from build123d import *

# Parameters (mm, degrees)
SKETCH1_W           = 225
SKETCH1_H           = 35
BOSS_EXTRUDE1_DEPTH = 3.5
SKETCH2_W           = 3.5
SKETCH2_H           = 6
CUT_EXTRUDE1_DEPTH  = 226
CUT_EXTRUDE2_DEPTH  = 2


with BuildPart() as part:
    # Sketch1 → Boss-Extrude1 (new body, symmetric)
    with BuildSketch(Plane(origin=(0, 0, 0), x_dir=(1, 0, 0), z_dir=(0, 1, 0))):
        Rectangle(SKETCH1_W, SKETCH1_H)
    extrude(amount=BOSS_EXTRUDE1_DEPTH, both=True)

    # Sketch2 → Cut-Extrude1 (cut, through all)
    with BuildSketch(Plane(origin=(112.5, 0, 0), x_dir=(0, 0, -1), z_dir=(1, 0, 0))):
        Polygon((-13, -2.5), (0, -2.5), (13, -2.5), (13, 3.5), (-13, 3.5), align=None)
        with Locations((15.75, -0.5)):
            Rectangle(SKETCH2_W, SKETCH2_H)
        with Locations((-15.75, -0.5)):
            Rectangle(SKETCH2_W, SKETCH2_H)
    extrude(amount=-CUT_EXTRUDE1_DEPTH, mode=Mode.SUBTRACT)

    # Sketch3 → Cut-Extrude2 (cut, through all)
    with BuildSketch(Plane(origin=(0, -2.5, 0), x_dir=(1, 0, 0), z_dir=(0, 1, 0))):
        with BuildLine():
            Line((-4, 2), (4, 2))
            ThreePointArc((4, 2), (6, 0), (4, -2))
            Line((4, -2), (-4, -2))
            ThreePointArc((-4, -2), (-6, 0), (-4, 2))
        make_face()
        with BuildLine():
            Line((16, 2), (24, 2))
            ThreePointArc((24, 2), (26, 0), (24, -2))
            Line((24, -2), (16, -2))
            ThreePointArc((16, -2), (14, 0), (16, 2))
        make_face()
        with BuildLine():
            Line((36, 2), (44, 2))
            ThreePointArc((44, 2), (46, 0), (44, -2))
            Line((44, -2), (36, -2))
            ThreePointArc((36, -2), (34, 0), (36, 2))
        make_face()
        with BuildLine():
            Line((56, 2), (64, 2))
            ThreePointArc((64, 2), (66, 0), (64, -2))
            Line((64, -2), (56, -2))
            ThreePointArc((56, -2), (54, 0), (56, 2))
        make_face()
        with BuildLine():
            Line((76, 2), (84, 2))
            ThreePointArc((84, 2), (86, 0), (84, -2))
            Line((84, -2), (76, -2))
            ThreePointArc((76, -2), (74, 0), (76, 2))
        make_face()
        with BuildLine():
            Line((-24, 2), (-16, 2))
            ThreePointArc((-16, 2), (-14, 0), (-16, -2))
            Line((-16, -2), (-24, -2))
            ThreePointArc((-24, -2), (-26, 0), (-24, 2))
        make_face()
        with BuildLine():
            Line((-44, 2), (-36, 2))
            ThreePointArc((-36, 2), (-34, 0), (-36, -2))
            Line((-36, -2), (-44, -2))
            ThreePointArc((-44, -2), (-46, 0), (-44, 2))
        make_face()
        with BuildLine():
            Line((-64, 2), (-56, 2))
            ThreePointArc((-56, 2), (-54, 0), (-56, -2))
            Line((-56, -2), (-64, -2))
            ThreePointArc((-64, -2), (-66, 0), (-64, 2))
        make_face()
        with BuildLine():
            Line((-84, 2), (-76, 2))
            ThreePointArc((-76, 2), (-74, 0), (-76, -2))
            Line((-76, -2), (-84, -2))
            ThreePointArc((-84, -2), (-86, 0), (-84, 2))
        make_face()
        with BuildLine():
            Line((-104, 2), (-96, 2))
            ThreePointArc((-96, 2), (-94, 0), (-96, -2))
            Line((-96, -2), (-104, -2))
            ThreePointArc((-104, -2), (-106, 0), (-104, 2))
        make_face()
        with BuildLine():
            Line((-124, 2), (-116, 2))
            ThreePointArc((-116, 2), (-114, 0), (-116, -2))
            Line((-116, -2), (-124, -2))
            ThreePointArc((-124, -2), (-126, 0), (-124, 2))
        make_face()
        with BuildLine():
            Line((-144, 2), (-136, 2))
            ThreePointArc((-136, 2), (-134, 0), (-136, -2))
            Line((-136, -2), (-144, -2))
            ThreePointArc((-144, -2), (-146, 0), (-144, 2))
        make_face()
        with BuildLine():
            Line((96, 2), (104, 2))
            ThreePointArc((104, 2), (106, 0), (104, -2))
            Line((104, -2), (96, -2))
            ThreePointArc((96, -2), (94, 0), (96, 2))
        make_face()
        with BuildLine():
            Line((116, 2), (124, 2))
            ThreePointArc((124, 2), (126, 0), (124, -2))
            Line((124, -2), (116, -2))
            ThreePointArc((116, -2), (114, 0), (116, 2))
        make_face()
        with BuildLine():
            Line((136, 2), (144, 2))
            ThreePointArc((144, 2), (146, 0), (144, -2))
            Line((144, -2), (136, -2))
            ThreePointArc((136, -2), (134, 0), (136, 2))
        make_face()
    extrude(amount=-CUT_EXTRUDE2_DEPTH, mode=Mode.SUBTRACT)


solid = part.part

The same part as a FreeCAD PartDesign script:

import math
import FreeCAD as App
import Part
import Sketcher

V = App.Vector
Q = App.Units.Quantity

doc = App.newDocument("Part")
body = doc.addObject("PartDesign::Body", "Body")

sketch1 = body.newObject("Sketcher::SketchObject", "Sketch")
sketch1.AttachmentSupport = (doc.getObject("XZ_Plane"), [""])
sketch1.MapMode = "FlatFace"
sketch1.addGeometry([
    Part.LineSegment(V(-112, -18, 0), V(-112, 18, 0)),
    Part.LineSegment(V(-112, 18, 0), V(112, 18, 0)),
    Part.LineSegment(V(112, 18, 0), V(112, -18, 0)),
    Part.LineSegment(V(112, -18, 0), V(-112, -18, 0)),
], False)
sketch1.addConstraint([
    Sketcher.Constraint("Coincident", 0, 2, 1, 1),
    Sketcher.Constraint("Coincident", 1, 2, 2, 1),
    Sketcher.Constraint("Coincident", 2, 2, 3, 1),
    Sketcher.Constraint("Coincident", 3, 2, 0, 1),
    Sketcher.Constraint("Vertical", 0),
    Sketcher.Constraint("Horizontal", 1),
    Sketcher.Constraint("Vertical", 2),
    Sketcher.Constraint("Horizontal", 3),
    Sketcher.Constraint("Symmetric", 0, 2, 2, 2, -1, 1),
    Sketcher.Constraint("DistanceX", 1, 1, 1, 2, Q("225 mm")),
    Sketcher.Constraint("DistanceY", 0, 1, 0, 2, Q("35 mm")),
])
pad1 = body.newObject("PartDesign::Pad", "Pad")
pad1.Profile = sketch1
pad1.Length = 7
pad1.Midplane = True

sketch2 = body.newObject("Sketcher::SketchObject", "Sketch001")
sketch2.AttachmentSupport = (doc.getObject("YZ_Plane"), [""])
sketch2.MapMode = "FlatFace"
sketch2.AttachmentOffset = App.Placement(V(0, 0, 112.5), App.Rotation())
sketch2.addGeometry([
    Part.LineSegment(V(-2.5, 13, 0), V(-2.5, -13, 0)),
    Part.LineSegment(V(-2.5, -13, 0), V(3.5, -13, 0)),
    Part.LineSegment(V(3.5, -13, 0), V(3.5, 13, 0)),
    Part.LineSegment(V(3.5, 13, 0), V(-2.5, 13, 0)),
    Part.LineSegment(V(2.5, -14, 0), V(-3.5, -14, 0)),
    Part.LineSegment(V(-3.5, -14, 0), V(-3.5, -17.5, 0)),
    Part.LineSegment(V(-3.5, -17.5, 0), V(2.5, -17.5, 0)),
    Part.LineSegment(V(2.5, -17.5, 0), V(2.5, -14, 0)),
    Part.LineSegment(V(2.5, 17.5, 0), V(-3.5, 17.5, 0)),
    Part.LineSegment(V(-3.5, 17.5, 0), V(-3.5, 14, 0)),
    Part.LineSegment(V(-3.5, 14, 0), V(2.5, 14, 0)),
    Part.LineSegment(V(2.5, 14, 0), V(2.5, 17.5, 0)),
], False)
sketch2.addConstraint([
    Sketcher.Constraint("Coincident", 0, 2, 1, 1),
    Sketcher.Constraint("Coincident", 1, 2, 2, 1),
    Sketcher.Constraint("Coincident", 2, 2, 3, 1),
    Sketcher.Constraint("Coincident", 3, 2, 0, 1),
    Sketcher.Constraint("Coincident", 4, 2, 5, 1),
    Sketcher.Constraint("Coincident", 5, 2, 6, 1),
    Sketcher.Constraint("Coincident", 6, 2, 7, 1),
    Sketcher.Constraint("Coincident", 7, 2, 4, 1),
    Sketcher.Constraint("Coincident", 8, 2, 9, 1),
    Sketcher.Constraint("Coincident", 9, 2, 10, 1),
    Sketcher.Constraint("Coincident", 10, 2, 11, 1),
    Sketcher.Constraint("Coincident", 11, 2, 8, 1),
    Sketcher.Constraint("Vertical", 0),
    Sketcher.Constraint("Horizontal", 1),
    Sketcher.Constraint("Vertical", 2),
    Sketcher.Constraint("Horizontal", 3),
    Sketcher.Constraint("Horizontal", 4),
    Sketcher.Constraint("Vertical", 5),
    Sketcher.Constraint("Horizontal", 6),
    Sketcher.Constraint("Vertical", 7),
    Sketcher.Constraint("Horizontal", 8),
    Sketcher.Constraint("Vertical", 9),
    Sketcher.Constraint("Horizontal", 10),
    Sketcher.Constraint("Vertical", 11),
    Sketcher.Constraint("Symmetric", 5, 2, 8, 2, -1),
    Sketcher.Constraint("Symmetric", 7, 2, 10, 2, -1),
    Sketcher.Constraint("Equal", 3, 4),
    Sketcher.Constraint("DistanceX", 1, 1, 1, 2, Q("6 mm")),
    Sketcher.Constraint("DistanceY", 0, 2, 0, 1, Q("26 mm")),
    Sketcher.Constraint("DistanceY", 5, 2, 5, 1, Q("3.5 mm")),
    Sketcher.Constraint("DistanceY", 0, 2, -1, 1, Q("13 mm")),
    Sketcher.Constraint("DistanceY", 4, 2, -1, 1, Q("14 mm")),
    Sketcher.Constraint("DistanceX", 4, 2, 0, 2, Q("1 mm")),
    Sketcher.Constraint("DistanceX", 0, 2, -1, 1, Q("2.5 mm")),
])
pocket1 = body.newObject("PartDesign::Pocket", "Pocket")
pocket1.Profile = sketch2
pocket1.Type = "ThroughAll"

sketch3 = body.newObject("Sketcher::SketchObject", "Sketch002")
sketch3.AttachmentSupport = (doc.getObject("XZ_Plane"), [""])
sketch3.MapMode = "FlatFace"
sketch3.AttachmentOffset = App.Placement(V(0, 0, 2.5), App.Rotation())
sketch3.addGeometry([
    Part.LineSegment(V(4, -2, 0), V(-4, -2, 0)),
    Part.ArcOfCircle(Part.Circle(V(-4, 0, 0), V(0, 0, 1), 2), math.radians(90), math.radians(270)),
    Part.LineSegment(V(-4, 2, 0), V(4, 2, 0)),
    Part.ArcOfCircle(Part.Circle(V(4, 0, 0), V(0, 0, 1), 2), math.radians(-90), math.radians(90)),
    Part.LineSegment(V(24, -2, 0), V(16, -2, 0)),
    Part.ArcOfCircle(Part.Circle(V(16, 0, 0), V(0, 0, 1), 2), math.radians(90), math.radians(270)),
    Part.LineSegment(V(16, 2, 0), V(24, 2, 0)),
    Part.ArcOfCircle(Part.Circle(V(24, 0, 0), V(0, 0, 1), 2), math.radians(-90), math.radians(90)),
    Part.LineSegment(V(44, -2, 0), V(36, -2, 0)),
    Part.ArcOfCircle(Part.Circle(V(36, 0, 0), V(0, 0, 1), 2), math.radians(90), math.radians(270)),
    Part.LineSegment(V(36, 2, 0), V(44, 2, 0)),
    Part.ArcOfCircle(Part.Circle(V(44, 0, 0), V(0, 0, 1), 2), math.radians(-90), math.radians(90)),
    Part.LineSegment(V(64, -2, 0), V(56, -2, 0)),
    Part.ArcOfCircle(Part.Circle(V(56, 0, 0), V(0, 0, 1), 2), math.radians(90), math.radians(270)),
    Part.LineSegment(V(56, 2, 0), V(64, 2, 0)),
    Part.ArcOfCircle(Part.Circle(V(64, 0, 0), V(0, 0, 1), 2), math.radians(-90), math.radians(90)),
    Part.LineSegment(V(84, -2, 0), V(76, -2, 0)),
    Part.ArcOfCircle(Part.Circle(V(76, 0, 0), V(0, 0, 1), 2), math.radians(90), math.radians(270)),
    Part.LineSegment(V(76, 2, 0), V(84, 2, 0)),
    Part.ArcOfCircle(Part.Circle(V(84, 0, 0), V(0, 0, 1), 2), math.radians(-90), math.radians(90)),
    Part.LineSegment(V(-16, -2, 0), V(-24, -2, 0)),
    Part.ArcOfCircle(Part.Circle(V(-24, 0, 0), V(0, 0, 1), 2), math.radians(90), math.radians(270)),
    Part.LineSegment(V(-24, 2, 0), V(-16, 2, 0)),
    Part.ArcOfCircle(Part.Circle(V(-16, 0, 0), V(0, 0, 1), 2), math.radians(-90), math.radians(90)),
    Part.LineSegment(V(-36, -2, 0), V(-44, -2, 0)),
    Part.ArcOfCircle(Part.Circle(V(-44, 0, 0), V(0, 0, 1), 2), math.radians(90), math.radians(270)),
    Part.LineSegment(V(-44, 2, 0), V(-36, 2, 0)),
    Part.ArcOfCircle(Part.Circle(V(-36, 0, 0), V(0, 0, 1), 2), math.radians(-90), math.radians(90)),
    Part.LineSegment(V(-56, -2, 0), V(-64, -2, 0)),
    Part.ArcOfCircle(Part.Circle(V(-64, 0, 0), V(0, 0, 1), 2), math.radians(90), math.radians(270)),
    Part.LineSegment(V(-64, 2, 0), V(-56, 2, 0)),
    Part.ArcOfCircle(Part.Circle(V(-56, 0, 0), V(0, 0, 1), 2), math.radians(-90), math.radians(90)),
    Part.LineSegment(V(-76, -2, 0), V(-84, -2, 0)),
    Part.ArcOfCircle(Part.Circle(V(-84, 0, 0), V(0, 0, 1), 2), math.radians(90), math.radians(270)),
    Part.LineSegment(V(-84, 2, 0), V(-76, 2, 0)),
    Part.ArcOfCircle(Part.Circle(V(-76, 0, 0), V(0, 0, 1), 2), math.radians(-90), math.radians(90)),
    Part.LineSegment(V(-96, -2, 0), V(-104, -2, 0)),
    Part.ArcOfCircle(Part.Circle(V(-104, 0, 0), V(0, 0, 1), 2), math.radians(90), math.radians(270)),
    Part.LineSegment(V(-104, 2, 0), V(-96, 2, 0)),
    Part.ArcOfCircle(Part.Circle(V(-96, 0, 0), V(0, 0, 1), 2), math.radians(-90), math.radians(90)),
    Part.LineSegment(V(-116, -2, 0), V(-124, -2, 0)),
    Part.ArcOfCircle(Part.Circle(V(-124, 0, 0), V(0, 0, 1), 2), math.radians(90), math.radians(270)),
    Part.LineSegment(V(-124, 2, 0), V(-116, 2, 0)),
    Part.ArcOfCircle(Part.Circle(V(-116, 0, 0), V(0, 0, 1), 2), math.radians(-90), math.radians(90)),
    Part.LineSegment(V(-136, -2, 0), V(-144, -2, 0)),
    Part.ArcOfCircle(Part.Circle(V(-144, 0, 0), V(0, 0, 1), 2), math.radians(90), math.radians(270)),
    Part.LineSegment(V(-144, 2, 0), V(-136, 2, 0)),
    Part.ArcOfCircle(Part.Circle(V(-136, 0, 0), V(0, 0, 1), 2), math.radians(-90), math.radians(90)),
    Part.LineSegment(V(104, -2, 0), V(96, -2, 0)),
    Part.ArcOfCircle(Part.Circle(V(96, 0, 0), V(0, 0, 1), 2), math.radians(90), math.radians(270)),
    Part.LineSegment(V(96, 2, 0), V(104, 2, 0)),
    Part.ArcOfCircle(Part.Circle(V(104, 0, 0), V(0, 0, 1), 2), math.radians(-90), math.radians(90)),
    Part.LineSegment(V(124, -2, 0), V(116, -2, 0)),
    Part.ArcOfCircle(Part.Circle(V(116, 0, 0), V(0, 0, 1), 2), math.radians(90), math.radians(270)),
    Part.LineSegment(V(116, 2, 0), V(124, 2, 0)),
    Part.ArcOfCircle(Part.Circle(V(124, 0, 0), V(0, 0, 1), 2), math.radians(-90), math.radians(90)),
    Part.LineSegment(V(144, -2, 0), V(136, -2, 0)),
    Part.ArcOfCircle(Part.Circle(V(136, 0, 0), V(0, 0, 1), 2), math.radians(90), math.radians(270)),
    Part.LineSegment(V(136, 2, 0), V(144, 2, 0)),
    Part.ArcOfCircle(Part.Circle(V(144, 0, 0), V(0, 0, 1), 2), math.radians(-90), math.radians(90)),
], False)
sketch3.addConstraint([
    Sketcher.Constraint("Tangent", 0, 2, 1, 2),
    Sketcher.Constraint("Tangent", 1, 1, 2, 1),
    Sketcher.Constraint("Tangent", 2, 2, 3, 2),
    Sketcher.Constraint("Tangent", 3, 1, 0, 1),
    Sketcher.Constraint("Tangent", 4, 2, 5, 2),
    Sketcher.Constraint("Tangent", 5, 1, 6, 1),
    Sketcher.Constraint("Tangent", 6, 2, 7, 2),
    Sketcher.Constraint("Tangent", 7, 1, 4, 1),
    Sketcher.Constraint("Tangent", 8, 2, 9, 2),
    Sketcher.Constraint("Tangent", 9, 1, 10, 1),
    Sketcher.Constraint("Tangent", 10, 2, 11, 2),
    Sketcher.Constraint("Tangent", 11, 1, 8, 1),
    Sketcher.Constraint("Tangent", 12, 2, 13, 2),
    Sketcher.Constraint("Tangent", 13, 1, 14, 1),
    Sketcher.Constraint("Tangent", 14, 2, 15, 2),
    Sketcher.Constraint("Tangent", 15, 1, 12, 1),
    Sketcher.Constraint("Tangent", 16, 2, 17, 2),
    Sketcher.Constraint("Tangent", 17, 1, 18, 1),
    Sketcher.Constraint("Tangent", 18, 2, 19, 2),
    Sketcher.Constraint("Tangent", 19, 1, 16, 1),
    Sketcher.Constraint("Tangent", 20, 2, 21, 2),
    Sketcher.Constraint("Tangent", 21, 1, 22, 1),
    Sketcher.Constraint("Tangent", 22, 2, 23, 2),
    Sketcher.Constraint("Tangent", 23, 1, 20, 1),
    Sketcher.Constraint("Tangent", 24, 2, 25, 2),
    Sketcher.Constraint("Tangent", 25, 1, 26, 1),
    Sketcher.Constraint("Tangent", 26, 2, 27, 2),
    Sketcher.Constraint("Tangent", 27, 1, 24, 1),
    Sketcher.Constraint("Tangent", 28, 2, 29, 2),
    Sketcher.Constraint("Tangent", 29, 1, 30, 1),
    Sketcher.Constraint("Tangent", 30, 2, 31, 2),
    Sketcher.Constraint("Tangent", 31, 1, 28, 1),
    Sketcher.Constraint("Tangent", 32, 2, 33, 2),
    Sketcher.Constraint("Tangent", 33, 1, 34, 1),
    Sketcher.Constraint("Tangent", 34, 2, 35, 2),
    Sketcher.Constraint("Tangent", 35, 1, 32, 1),
    Sketcher.Constraint("Tangent", 36, 2, 37, 2),
    Sketcher.Constraint("Tangent", 37, 1, 38, 1),
    Sketcher.Constraint("Tangent", 38, 2, 39, 2),
    Sketcher.Constraint("Tangent", 39, 1, 36, 1),
    Sketcher.Constraint("Tangent", 40, 2, 41, 2),
    Sketcher.Constraint("Tangent", 41, 1, 42, 1),
    Sketcher.Constraint("Tangent", 42, 2, 43, 2),
    Sketcher.Constraint("Tangent", 43, 1, 40, 1),
    Sketcher.Constraint("Tangent", 44, 2, 45, 2),
    Sketcher.Constraint("Tangent", 45, 1, 46, 1),
    Sketcher.Constraint("Tangent", 46, 2, 47, 2),
    Sketcher.Constraint("Tangent", 47, 1, 44, 1),
    Sketcher.Constraint("Tangent", 48, 2, 49, 2),
    Sketcher.Constraint("Tangent", 49, 1, 50, 1),
    Sketcher.Constraint("Tangent", 50, 2, 51, 2),
    Sketcher.Constraint("Tangent", 51, 1, 48, 1),
    Sketcher.Constraint("Tangent", 52, 2, 53, 2),
    Sketcher.Constraint("Tangent", 53, 1, 54, 1),
    Sketcher.Constraint("Tangent", 54, 2, 55, 2),
    Sketcher.Constraint("Tangent", 55, 1, 52, 1),
    Sketcher.Constraint("Tangent", 56, 2, 57, 2),
    Sketcher.Constraint("Tangent", 57, 1, 58, 1),
    Sketcher.Constraint("Tangent", 58, 2, 59, 2),
    Sketcher.Constraint("Tangent", 59, 1, 56, 1),
    Sketcher.Constraint("Horizontal", 0),
    Sketcher.Constraint("Horizontal", 2),
    Sketcher.Constraint("Horizontal", 4),
    Sketcher.Constraint("Horizontal", 6),
    Sketcher.Constraint("Horizontal", 8),
    Sketcher.Constraint("Horizontal", 10),
    Sketcher.Constraint("Horizontal", 12),
    Sketcher.Constraint("Horizontal", 14),
    Sketcher.Constraint("Horizontal", 16),
    Sketcher.Constraint("Horizontal", 18),
    Sketcher.Constraint("Horizontal", 20),
    Sketcher.Constraint("Horizontal", 22),
    Sketcher.Constraint("Horizontal", 24),
    Sketcher.Constraint("Horizontal", 26),
    Sketcher.Constraint("Horizontal", 28),
    Sketcher.Constraint("Horizontal", 30),
    Sketcher.Constraint("Horizontal", 32),
    Sketcher.Constraint("Horizontal", 34),
    Sketcher.Constraint("Horizontal", 36),
    Sketcher.Constraint("Horizontal", 38),
    Sketcher.Constraint("Horizontal", 40),
    Sketcher.Constraint("Horizontal", 42),
    Sketcher.Constraint("Horizontal", 44),
    Sketcher.Constraint("Horizontal", 46),
    Sketcher.Constraint("Horizontal", 48),
    Sketcher.Constraint("Horizontal", 50),
    Sketcher.Constraint("Horizontal", 52),
    Sketcher.Constraint("Horizontal", 54),
    Sketcher.Constraint("Horizontal", 56),
    Sketcher.Constraint("Horizontal", 58),
    Sketcher.Constraint("Equal", 3, 5),
    Sketcher.Constraint("Equal", 7, 9),
    Sketcher.Constraint("Equal", 11, 13),
    Sketcher.Constraint("Equal", 15, 17),
    Sketcher.Constraint("Equal", 19, 21),
    Sketcher.Constraint("Equal", 23, 25),
    Sketcher.Constraint("Equal", 27, 29),
    Sketcher.Constraint("Equal", 31, 33),
    Sketcher.Constraint("Equal", 35, 37),
    Sketcher.Constraint("Equal", 39, 41),
    Sketcher.Constraint("Equal", 43, 45),
    Sketcher.Constraint("Equal", 47, 49),
    Sketcher.Constraint("Equal", 51, 53),
    Sketcher.Constraint("Equal", 55, 57),
    Sketcher.Constraint("Symmetric", 1, 3, 3, 3, -1, 1),
    Sketcher.Constraint("Symmetric", 7, 3, 21, 3, -1, 1),
    Sketcher.Constraint("Symmetric", 11, 3, 25, 3, -1, 1),
    Sketcher.Constraint("Symmetric", 15, 3, 29, 3, -1, 1),
    Sketcher.Constraint("Symmetric", 19, 3, 33, 3, -1, 1),
    Sketcher.Constraint("Symmetric", 39, 3, 49, 3, -1, 1),
    Sketcher.Constraint("Symmetric", 43, 3, 53, 3, -1, 1),
    Sketcher.Constraint("Symmetric", 47, 3, 57, 3, -1, 1),
    Sketcher.Constraint("Symmetric", 5, 3, 23, 3, -2),
    Sketcher.Constraint("Symmetric", 9, 3, 27, 3, -2),
    Sketcher.Constraint("Symmetric", 13, 3, 31, 3, -2),
    Sketcher.Constraint("Symmetric", 17, 3, 35, 3, -2),
    Sketcher.Constraint("Symmetric", 37, 3, 51, 3, -2),
    Sketcher.Constraint("Symmetric", 41, 3, 55, 3, -2),
    Sketcher.Constraint("Symmetric", 45, 3, 59, 3, -2),
    Sketcher.Constraint("Equal", 2, 4),
    Sketcher.Constraint("Equal", 6, 8),
    Sketcher.Constraint("Equal", 10, 12),
    Sketcher.Constraint("Equal", 14, 16),
    Sketcher.Constraint("Equal", 34, 36),
    Sketcher.Constraint("Equal", 38, 40),
    Sketcher.Constraint("Equal", 42, 44),
    Sketcher.Constraint("Radius", 1, Q("2 mm")),
    Sketcher.Constraint("DistanceX", 0, 2, 0, 1, Q("8 mm")),
    Sketcher.Constraint("DistanceX", -1, 1, 5, 3, Q("16 mm")),
    Sketcher.Constraint("DistanceX", -1, 1, 9, 3, Q("36 mm")),
    Sketcher.Constraint("DistanceX", -1, 1, 13, 3, Q("56 mm")),
    Sketcher.Constraint("DistanceX", -1, 1, 17, 3, Q("76 mm")),
    Sketcher.Constraint("DistanceX", 37, 3, -1, 1, Q("104 mm")),
    Sketcher.Constraint("DistanceX", 41, 3, -1, 1, Q("124 mm")),
    Sketcher.Constraint("DistanceX", 45, 3, -1, 1, Q("144 mm")),
])
pocket2 = body.newObject("PartDesign::Pocket", "Pocket001")
pocket2.Profile = sketch3
pocket2.Type = "ThroughAll"
pocket2.Reversed = True

doc.recompute()
